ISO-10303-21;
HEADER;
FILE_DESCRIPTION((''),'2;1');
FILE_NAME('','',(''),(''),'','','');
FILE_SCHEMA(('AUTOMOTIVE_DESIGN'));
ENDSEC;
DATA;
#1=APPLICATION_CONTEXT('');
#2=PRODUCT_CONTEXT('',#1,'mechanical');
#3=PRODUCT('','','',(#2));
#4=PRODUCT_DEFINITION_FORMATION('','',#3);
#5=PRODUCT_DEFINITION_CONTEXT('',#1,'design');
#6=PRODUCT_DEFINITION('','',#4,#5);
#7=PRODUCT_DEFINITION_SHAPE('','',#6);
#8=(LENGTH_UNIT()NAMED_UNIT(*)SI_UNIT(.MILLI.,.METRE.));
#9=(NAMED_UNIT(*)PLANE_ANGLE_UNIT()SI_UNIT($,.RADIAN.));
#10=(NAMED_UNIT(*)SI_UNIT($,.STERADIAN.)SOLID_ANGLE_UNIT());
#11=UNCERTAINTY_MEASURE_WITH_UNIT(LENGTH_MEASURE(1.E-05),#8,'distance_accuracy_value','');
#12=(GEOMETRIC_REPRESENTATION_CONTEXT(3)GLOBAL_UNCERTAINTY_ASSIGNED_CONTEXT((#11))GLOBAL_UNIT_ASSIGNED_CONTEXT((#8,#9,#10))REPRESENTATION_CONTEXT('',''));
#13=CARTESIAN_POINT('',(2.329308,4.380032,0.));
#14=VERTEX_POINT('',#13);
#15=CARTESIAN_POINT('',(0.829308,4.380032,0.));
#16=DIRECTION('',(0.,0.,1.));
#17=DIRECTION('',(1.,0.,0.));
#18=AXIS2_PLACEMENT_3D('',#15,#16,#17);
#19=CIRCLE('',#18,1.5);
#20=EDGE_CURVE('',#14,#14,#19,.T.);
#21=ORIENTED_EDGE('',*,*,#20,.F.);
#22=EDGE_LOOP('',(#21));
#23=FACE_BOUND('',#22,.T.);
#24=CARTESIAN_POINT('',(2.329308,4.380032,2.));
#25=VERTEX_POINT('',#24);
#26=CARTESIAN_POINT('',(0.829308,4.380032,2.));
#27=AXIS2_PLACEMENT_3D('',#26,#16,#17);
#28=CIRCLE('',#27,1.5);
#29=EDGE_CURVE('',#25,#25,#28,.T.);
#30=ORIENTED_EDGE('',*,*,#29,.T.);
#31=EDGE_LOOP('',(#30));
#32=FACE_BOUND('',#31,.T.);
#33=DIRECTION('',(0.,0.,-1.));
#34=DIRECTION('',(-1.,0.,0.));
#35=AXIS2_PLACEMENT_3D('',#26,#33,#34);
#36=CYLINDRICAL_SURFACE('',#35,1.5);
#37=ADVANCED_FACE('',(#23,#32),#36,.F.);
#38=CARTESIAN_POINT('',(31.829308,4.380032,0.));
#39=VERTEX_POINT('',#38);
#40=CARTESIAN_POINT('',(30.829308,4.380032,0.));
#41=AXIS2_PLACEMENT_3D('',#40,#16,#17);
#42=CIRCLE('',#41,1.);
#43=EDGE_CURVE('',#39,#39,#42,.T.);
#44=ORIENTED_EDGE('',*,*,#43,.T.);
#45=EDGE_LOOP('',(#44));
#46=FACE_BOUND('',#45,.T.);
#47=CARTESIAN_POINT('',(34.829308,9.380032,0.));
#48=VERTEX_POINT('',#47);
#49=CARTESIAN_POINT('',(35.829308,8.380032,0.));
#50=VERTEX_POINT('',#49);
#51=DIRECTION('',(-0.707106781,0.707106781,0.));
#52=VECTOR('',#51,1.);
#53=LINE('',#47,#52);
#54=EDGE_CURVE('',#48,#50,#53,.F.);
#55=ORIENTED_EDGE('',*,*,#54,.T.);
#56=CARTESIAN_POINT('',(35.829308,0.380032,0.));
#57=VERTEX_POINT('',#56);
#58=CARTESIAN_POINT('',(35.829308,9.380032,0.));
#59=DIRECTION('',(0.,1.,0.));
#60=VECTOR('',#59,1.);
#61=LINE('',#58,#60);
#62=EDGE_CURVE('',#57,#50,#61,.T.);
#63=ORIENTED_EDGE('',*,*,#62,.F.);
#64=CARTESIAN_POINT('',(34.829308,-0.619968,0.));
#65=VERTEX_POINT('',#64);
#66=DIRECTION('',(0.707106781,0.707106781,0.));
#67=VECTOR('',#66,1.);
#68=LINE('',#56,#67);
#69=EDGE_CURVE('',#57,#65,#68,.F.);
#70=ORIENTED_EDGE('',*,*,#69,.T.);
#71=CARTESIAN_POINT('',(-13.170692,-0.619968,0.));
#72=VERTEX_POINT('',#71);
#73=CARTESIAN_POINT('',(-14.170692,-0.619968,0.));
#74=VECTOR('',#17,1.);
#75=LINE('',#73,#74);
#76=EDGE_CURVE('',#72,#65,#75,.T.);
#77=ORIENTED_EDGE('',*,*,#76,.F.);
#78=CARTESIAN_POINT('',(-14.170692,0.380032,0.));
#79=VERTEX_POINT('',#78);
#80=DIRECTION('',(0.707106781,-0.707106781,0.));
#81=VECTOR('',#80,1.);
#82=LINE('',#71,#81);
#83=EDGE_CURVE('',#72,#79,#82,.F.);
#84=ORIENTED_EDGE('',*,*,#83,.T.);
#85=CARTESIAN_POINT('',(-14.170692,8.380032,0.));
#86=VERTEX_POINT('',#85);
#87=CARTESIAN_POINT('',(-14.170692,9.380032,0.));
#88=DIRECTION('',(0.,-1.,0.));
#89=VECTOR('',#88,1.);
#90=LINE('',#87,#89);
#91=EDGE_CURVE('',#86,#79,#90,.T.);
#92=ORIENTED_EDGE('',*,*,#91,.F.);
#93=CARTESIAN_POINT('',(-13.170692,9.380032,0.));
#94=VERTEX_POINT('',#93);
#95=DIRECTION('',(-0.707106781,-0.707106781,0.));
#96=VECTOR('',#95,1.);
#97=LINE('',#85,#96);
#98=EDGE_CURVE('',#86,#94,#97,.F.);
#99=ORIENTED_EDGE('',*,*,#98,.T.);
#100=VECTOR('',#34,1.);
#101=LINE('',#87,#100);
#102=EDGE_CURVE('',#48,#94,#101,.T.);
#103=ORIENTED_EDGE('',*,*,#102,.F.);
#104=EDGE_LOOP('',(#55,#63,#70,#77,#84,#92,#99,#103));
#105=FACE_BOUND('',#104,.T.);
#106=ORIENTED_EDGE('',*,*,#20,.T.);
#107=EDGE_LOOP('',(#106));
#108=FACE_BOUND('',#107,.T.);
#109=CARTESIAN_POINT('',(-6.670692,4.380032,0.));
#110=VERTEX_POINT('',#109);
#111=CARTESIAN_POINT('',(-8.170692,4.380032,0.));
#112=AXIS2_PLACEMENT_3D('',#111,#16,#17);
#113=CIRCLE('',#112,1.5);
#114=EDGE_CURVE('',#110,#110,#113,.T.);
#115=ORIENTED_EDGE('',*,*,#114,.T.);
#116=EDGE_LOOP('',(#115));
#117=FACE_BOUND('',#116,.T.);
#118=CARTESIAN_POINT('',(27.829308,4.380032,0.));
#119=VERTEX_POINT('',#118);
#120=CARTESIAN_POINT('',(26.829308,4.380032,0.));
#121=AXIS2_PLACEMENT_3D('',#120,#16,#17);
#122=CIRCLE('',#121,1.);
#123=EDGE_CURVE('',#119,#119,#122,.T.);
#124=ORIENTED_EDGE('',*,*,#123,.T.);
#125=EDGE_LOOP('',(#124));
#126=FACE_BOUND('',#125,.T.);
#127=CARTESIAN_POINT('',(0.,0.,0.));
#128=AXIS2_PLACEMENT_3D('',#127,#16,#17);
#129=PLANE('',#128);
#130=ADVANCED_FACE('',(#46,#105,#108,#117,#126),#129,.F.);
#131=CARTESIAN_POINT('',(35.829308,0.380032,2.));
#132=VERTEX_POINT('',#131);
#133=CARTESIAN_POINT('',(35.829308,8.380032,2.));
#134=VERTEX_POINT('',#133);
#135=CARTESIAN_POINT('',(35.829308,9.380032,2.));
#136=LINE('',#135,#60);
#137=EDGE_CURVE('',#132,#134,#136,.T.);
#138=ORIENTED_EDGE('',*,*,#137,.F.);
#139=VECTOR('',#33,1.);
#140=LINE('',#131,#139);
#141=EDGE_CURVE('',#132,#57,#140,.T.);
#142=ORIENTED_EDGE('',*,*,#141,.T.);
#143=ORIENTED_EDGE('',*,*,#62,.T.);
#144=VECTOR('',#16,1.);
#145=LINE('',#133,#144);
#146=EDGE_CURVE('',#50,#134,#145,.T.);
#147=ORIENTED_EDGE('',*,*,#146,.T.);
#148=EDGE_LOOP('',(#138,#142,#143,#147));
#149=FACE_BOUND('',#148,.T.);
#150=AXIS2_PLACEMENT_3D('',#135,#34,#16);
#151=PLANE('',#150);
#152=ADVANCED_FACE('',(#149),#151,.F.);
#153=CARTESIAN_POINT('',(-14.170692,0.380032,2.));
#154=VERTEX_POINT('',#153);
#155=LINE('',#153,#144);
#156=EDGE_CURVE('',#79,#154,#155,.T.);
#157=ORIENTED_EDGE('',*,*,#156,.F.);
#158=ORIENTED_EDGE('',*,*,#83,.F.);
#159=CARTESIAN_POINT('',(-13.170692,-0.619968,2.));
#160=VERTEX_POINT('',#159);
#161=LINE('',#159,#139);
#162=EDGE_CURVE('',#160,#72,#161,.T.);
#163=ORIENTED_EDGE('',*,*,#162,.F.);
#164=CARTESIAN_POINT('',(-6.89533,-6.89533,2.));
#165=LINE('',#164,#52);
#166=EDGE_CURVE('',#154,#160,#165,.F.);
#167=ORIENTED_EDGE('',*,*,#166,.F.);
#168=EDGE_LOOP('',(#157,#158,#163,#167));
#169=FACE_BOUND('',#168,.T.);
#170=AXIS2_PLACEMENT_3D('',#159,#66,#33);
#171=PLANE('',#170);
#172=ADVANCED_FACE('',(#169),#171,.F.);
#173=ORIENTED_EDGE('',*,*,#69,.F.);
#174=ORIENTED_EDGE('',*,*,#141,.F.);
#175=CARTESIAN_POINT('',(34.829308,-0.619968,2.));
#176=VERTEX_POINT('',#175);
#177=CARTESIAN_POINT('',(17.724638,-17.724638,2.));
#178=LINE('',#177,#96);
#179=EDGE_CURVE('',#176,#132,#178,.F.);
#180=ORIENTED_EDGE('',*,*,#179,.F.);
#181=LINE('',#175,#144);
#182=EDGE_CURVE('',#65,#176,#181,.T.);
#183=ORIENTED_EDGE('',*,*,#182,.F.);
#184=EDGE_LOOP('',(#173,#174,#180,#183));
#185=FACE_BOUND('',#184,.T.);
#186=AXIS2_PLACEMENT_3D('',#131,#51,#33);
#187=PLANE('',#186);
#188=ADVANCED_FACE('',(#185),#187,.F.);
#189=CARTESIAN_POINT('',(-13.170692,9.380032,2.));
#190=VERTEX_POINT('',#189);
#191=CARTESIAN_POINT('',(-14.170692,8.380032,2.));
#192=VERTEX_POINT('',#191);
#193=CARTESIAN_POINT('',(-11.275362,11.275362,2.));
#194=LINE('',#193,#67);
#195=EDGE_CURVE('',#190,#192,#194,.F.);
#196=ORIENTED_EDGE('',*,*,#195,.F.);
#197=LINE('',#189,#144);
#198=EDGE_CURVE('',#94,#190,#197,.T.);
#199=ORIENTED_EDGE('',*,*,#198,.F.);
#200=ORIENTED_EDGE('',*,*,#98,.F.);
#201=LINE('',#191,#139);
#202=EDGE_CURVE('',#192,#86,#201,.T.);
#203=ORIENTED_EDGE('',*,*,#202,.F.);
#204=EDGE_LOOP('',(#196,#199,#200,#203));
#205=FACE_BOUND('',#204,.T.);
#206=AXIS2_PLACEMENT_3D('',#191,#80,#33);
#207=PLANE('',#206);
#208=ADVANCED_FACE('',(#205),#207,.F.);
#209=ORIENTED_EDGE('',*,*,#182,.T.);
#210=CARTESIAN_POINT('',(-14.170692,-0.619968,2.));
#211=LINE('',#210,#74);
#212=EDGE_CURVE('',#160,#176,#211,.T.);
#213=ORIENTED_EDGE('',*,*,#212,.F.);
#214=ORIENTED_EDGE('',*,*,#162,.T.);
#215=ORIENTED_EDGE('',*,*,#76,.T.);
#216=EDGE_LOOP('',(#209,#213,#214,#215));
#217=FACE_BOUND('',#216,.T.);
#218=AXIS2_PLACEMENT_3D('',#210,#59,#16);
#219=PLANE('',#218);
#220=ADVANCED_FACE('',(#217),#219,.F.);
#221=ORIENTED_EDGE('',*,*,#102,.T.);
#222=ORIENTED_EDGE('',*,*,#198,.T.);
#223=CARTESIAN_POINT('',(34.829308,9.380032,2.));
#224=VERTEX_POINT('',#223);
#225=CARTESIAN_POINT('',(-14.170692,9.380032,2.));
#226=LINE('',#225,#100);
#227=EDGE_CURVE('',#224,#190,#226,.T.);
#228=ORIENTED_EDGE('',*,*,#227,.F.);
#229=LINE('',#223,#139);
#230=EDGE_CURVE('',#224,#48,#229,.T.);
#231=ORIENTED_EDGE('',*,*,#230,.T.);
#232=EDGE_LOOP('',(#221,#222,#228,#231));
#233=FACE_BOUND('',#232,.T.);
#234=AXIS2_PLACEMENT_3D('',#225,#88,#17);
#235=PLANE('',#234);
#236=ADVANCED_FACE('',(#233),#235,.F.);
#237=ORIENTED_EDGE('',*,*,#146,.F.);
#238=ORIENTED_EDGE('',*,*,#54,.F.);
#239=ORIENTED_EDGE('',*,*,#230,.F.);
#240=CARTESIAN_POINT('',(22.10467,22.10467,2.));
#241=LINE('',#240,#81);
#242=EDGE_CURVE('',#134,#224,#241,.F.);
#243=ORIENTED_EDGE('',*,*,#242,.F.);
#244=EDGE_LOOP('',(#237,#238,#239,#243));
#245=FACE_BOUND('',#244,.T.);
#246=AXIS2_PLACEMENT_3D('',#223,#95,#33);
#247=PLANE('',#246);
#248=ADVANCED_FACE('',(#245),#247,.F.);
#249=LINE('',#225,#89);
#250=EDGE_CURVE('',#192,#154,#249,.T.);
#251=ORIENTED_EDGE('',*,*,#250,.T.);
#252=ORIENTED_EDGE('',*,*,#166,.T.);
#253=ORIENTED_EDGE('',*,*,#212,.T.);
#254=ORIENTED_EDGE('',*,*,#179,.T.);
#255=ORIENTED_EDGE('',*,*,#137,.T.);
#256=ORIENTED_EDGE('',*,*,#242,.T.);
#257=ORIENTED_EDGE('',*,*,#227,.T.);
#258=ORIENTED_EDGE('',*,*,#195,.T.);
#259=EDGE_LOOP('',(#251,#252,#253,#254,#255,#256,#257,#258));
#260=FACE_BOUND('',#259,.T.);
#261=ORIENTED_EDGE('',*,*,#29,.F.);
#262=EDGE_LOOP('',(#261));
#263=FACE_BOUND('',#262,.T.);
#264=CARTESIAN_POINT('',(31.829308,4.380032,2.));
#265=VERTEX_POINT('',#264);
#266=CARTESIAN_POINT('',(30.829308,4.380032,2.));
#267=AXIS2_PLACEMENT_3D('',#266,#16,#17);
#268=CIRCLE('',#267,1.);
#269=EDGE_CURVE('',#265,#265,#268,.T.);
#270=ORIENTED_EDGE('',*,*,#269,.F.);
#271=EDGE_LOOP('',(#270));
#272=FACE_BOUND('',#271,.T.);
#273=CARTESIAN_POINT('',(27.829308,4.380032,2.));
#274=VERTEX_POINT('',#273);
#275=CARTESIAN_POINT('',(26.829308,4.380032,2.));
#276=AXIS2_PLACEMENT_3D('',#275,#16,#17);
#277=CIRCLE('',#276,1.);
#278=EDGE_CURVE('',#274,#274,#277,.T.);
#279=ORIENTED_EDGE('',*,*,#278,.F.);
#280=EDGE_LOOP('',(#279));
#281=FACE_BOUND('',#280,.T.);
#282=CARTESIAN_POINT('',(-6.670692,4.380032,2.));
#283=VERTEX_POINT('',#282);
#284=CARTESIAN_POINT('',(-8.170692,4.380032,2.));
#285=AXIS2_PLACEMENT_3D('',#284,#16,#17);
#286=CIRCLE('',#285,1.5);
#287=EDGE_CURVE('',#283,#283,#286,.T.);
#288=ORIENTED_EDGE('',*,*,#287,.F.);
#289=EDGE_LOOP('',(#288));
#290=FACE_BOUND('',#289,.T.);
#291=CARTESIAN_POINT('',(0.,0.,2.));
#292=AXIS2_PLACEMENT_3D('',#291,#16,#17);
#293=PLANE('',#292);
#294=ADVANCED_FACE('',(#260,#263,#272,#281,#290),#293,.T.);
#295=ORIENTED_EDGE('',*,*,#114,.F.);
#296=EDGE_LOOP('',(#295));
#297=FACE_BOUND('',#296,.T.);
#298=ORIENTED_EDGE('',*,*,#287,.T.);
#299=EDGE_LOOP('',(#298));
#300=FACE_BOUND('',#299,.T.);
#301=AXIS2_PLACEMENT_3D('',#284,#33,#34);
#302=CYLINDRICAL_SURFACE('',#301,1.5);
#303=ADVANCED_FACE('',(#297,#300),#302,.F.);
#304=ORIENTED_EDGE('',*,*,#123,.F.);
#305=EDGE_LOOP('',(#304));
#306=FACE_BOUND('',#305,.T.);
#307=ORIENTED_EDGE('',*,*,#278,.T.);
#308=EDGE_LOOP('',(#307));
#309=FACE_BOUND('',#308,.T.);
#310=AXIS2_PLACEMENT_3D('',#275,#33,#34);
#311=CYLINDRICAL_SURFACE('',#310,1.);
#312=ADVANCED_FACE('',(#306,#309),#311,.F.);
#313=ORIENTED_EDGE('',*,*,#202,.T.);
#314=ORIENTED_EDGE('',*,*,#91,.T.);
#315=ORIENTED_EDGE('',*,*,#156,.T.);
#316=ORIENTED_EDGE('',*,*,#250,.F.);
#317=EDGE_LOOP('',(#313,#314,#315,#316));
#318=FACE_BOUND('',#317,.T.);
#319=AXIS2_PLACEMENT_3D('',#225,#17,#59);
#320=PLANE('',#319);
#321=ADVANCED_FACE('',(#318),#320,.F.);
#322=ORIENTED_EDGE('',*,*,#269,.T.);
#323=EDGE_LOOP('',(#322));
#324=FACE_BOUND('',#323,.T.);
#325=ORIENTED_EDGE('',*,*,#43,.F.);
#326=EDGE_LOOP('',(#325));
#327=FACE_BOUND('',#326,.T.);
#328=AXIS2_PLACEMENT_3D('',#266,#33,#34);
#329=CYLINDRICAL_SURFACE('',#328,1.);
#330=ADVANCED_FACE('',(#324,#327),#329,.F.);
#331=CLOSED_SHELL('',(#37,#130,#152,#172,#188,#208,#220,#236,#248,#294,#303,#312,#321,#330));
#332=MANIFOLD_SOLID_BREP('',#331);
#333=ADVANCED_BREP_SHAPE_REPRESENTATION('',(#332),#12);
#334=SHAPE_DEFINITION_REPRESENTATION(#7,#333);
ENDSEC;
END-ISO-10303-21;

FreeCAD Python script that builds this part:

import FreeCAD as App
import Part
import Sketcher
from FreeCAD import Vector
Q = App.Units.Quantity


def edges_at(feature, points):
    """Names of the edges that pass closest to the given points."""
    edges = feature.Shape.Edges
    near = lambda p: min(range(len(edges)), key=lambda i: edges[i].distToShape(Part.Vertex(*p))[0])
    return sorted({f"Edge{near(p) + 1}" for p in points})

doc = App.newDocument("Part")
body = doc.addObject("PartDesign::Body", "Body")

sketch1 = body.newObject("Sketcher::SketchObject", "Sketch")
sketch1.AttachmentSupport = (doc.getObject("XY_Plane"), [""])
sketch1.MapMode = "FlatFace"
sketch1.addGeometry(Part.LineSegment(Vector(-14.170692, 9.380032, 0), Vector(-14.170692, -0.619968, 0)), False)
sketch1.addGeometry(Part.LineSegment(Vector(-14.170692, -0.619968, 0), Vector(35.829308, -0.619968, 0)), False)
sketch1.addGeometry(Part.LineSegment(Vector(35.829308, -0.619968, 0), Vector(35.829308, 9.380032, 0)), False)
sketch1.addGeometry(Part.LineSegment(Vector(35.829308, 9.380032, 0), Vector(-14.170692, 9.380032, 0)), False)
sketch1.addGeometry(Part.Circle(Vector(-8.170692, 4.380032, 0), Vector(0, 0, 1), 1.5), False)
sketch1.addGeometry(Part.Circle(Vector(0.829308, 4.380032, 0), Vector(0, 0, 1), 1.5), False)
sketch1.addGeometry(Part.Circle(Vector(26.829308, 4.380032, 0), Vector(0, 0, 1), 1), False)
sketch1.addGeometry(Part.Circle(Vector(30.829308, 4.380032, 0), Vector(0, 0, 1), 1), False)
sketch1.addConstraint(Sketcher.Constraint("Coincident", 0, 2, 1, 1))
sketch1.addConstraint(Sketcher.Constraint("Coincident", 1, 2, 2, 1))
sketch1.addConstraint(Sketcher.Constraint("Coincident", 2, 2, 3, 1))
sketch1.addConstraint(Sketcher.Constraint("Coincident", 3, 2, 0, 1))
sketch1.addConstraint(Sketcher.Constraint("Vertical", 0))
sketch1.addConstraint(Sketcher.Constraint("Horizontal", 1))
sketch1.addConstraint(Sketcher.Constraint("Vertical", 2))
sketch1.addConstraint(Sketcher.Constraint("Horizontal", 3))
sketch1.addConstraint(Sketcher.Constraint("Equal", 4, 5))
sketch1.addConstraint(Sketcher.Constraint("Equal", 6, 7))
sketch1.addConstraint(Sketcher.Constraint("Horizontal", 4, 3, 5, 3))
sketch1.addConstraint(Sketcher.Constraint("Horizontal", 5, 3, 6, 3))
sketch1.addConstraint(Sketcher.Constraint("Horizontal", 6, 3, 7, 3))
sketch1.addConstraint(Sketcher.Constraint("Diameter", 4, Q("3 mm")))
sketch1.addConstraint(Sketcher.Constraint("Diameter", 6, Q("2 mm")))
sketch1.addConstraint(Sketcher.Constraint("DistanceX", 1, 1, 1, 2, Q("50 mm")))
sketch1.addConstraint(Sketcher.Constraint("DistanceY", 0, 2, 0, 1, Q("10 mm")))
sketch1.addConstraint(Sketcher.Constraint("DistanceX", 4, 3, 5, 3, Q("9 mm")))
sketch1.addConstraint(Sketcher.Constraint("DistanceX", 5, 3, 6, 3, Q("26 mm")))
sketch1.addConstraint(Sketcher.Constraint("DistanceX", 6, 3, 7, 3, Q("4 mm")))
sketch1.addConstraint(Sketcher.Constraint("DistanceX", 0, 2, 4, 3, Q("6 mm")))
sketch1.addConstraint(Sketcher.Constraint("DistanceY", 0, 2, 4, 3, Q("5 mm")))
sketch1.addConstraint(Sketcher.Constraint("DistanceX", 4, 3, -1, 1, Q("8.170692 mm")))
sketch1.addConstraint(Sketcher.Constraint("DistanceY", -1, 1, 4, 3, Q("4.380032 mm")))
pad1 = body.newObject("PartDesign::Pad", "Pad")
pad1.Profile = sketch1
pad1.Length = 2
doc.recompute()

chamfer = body.newObject("PartDesign::Chamfer", "Chamfer")
chamfer.Base = (pad1, edges_at(pad1, [
    (-14.171, 9.38, 1),
    (35.829, 9.38, 1),
    (35.829, -0.62, 1),
    (-14.171, -0.62, 1),
]))
chamfer.Size = 1

doc.recompute()
